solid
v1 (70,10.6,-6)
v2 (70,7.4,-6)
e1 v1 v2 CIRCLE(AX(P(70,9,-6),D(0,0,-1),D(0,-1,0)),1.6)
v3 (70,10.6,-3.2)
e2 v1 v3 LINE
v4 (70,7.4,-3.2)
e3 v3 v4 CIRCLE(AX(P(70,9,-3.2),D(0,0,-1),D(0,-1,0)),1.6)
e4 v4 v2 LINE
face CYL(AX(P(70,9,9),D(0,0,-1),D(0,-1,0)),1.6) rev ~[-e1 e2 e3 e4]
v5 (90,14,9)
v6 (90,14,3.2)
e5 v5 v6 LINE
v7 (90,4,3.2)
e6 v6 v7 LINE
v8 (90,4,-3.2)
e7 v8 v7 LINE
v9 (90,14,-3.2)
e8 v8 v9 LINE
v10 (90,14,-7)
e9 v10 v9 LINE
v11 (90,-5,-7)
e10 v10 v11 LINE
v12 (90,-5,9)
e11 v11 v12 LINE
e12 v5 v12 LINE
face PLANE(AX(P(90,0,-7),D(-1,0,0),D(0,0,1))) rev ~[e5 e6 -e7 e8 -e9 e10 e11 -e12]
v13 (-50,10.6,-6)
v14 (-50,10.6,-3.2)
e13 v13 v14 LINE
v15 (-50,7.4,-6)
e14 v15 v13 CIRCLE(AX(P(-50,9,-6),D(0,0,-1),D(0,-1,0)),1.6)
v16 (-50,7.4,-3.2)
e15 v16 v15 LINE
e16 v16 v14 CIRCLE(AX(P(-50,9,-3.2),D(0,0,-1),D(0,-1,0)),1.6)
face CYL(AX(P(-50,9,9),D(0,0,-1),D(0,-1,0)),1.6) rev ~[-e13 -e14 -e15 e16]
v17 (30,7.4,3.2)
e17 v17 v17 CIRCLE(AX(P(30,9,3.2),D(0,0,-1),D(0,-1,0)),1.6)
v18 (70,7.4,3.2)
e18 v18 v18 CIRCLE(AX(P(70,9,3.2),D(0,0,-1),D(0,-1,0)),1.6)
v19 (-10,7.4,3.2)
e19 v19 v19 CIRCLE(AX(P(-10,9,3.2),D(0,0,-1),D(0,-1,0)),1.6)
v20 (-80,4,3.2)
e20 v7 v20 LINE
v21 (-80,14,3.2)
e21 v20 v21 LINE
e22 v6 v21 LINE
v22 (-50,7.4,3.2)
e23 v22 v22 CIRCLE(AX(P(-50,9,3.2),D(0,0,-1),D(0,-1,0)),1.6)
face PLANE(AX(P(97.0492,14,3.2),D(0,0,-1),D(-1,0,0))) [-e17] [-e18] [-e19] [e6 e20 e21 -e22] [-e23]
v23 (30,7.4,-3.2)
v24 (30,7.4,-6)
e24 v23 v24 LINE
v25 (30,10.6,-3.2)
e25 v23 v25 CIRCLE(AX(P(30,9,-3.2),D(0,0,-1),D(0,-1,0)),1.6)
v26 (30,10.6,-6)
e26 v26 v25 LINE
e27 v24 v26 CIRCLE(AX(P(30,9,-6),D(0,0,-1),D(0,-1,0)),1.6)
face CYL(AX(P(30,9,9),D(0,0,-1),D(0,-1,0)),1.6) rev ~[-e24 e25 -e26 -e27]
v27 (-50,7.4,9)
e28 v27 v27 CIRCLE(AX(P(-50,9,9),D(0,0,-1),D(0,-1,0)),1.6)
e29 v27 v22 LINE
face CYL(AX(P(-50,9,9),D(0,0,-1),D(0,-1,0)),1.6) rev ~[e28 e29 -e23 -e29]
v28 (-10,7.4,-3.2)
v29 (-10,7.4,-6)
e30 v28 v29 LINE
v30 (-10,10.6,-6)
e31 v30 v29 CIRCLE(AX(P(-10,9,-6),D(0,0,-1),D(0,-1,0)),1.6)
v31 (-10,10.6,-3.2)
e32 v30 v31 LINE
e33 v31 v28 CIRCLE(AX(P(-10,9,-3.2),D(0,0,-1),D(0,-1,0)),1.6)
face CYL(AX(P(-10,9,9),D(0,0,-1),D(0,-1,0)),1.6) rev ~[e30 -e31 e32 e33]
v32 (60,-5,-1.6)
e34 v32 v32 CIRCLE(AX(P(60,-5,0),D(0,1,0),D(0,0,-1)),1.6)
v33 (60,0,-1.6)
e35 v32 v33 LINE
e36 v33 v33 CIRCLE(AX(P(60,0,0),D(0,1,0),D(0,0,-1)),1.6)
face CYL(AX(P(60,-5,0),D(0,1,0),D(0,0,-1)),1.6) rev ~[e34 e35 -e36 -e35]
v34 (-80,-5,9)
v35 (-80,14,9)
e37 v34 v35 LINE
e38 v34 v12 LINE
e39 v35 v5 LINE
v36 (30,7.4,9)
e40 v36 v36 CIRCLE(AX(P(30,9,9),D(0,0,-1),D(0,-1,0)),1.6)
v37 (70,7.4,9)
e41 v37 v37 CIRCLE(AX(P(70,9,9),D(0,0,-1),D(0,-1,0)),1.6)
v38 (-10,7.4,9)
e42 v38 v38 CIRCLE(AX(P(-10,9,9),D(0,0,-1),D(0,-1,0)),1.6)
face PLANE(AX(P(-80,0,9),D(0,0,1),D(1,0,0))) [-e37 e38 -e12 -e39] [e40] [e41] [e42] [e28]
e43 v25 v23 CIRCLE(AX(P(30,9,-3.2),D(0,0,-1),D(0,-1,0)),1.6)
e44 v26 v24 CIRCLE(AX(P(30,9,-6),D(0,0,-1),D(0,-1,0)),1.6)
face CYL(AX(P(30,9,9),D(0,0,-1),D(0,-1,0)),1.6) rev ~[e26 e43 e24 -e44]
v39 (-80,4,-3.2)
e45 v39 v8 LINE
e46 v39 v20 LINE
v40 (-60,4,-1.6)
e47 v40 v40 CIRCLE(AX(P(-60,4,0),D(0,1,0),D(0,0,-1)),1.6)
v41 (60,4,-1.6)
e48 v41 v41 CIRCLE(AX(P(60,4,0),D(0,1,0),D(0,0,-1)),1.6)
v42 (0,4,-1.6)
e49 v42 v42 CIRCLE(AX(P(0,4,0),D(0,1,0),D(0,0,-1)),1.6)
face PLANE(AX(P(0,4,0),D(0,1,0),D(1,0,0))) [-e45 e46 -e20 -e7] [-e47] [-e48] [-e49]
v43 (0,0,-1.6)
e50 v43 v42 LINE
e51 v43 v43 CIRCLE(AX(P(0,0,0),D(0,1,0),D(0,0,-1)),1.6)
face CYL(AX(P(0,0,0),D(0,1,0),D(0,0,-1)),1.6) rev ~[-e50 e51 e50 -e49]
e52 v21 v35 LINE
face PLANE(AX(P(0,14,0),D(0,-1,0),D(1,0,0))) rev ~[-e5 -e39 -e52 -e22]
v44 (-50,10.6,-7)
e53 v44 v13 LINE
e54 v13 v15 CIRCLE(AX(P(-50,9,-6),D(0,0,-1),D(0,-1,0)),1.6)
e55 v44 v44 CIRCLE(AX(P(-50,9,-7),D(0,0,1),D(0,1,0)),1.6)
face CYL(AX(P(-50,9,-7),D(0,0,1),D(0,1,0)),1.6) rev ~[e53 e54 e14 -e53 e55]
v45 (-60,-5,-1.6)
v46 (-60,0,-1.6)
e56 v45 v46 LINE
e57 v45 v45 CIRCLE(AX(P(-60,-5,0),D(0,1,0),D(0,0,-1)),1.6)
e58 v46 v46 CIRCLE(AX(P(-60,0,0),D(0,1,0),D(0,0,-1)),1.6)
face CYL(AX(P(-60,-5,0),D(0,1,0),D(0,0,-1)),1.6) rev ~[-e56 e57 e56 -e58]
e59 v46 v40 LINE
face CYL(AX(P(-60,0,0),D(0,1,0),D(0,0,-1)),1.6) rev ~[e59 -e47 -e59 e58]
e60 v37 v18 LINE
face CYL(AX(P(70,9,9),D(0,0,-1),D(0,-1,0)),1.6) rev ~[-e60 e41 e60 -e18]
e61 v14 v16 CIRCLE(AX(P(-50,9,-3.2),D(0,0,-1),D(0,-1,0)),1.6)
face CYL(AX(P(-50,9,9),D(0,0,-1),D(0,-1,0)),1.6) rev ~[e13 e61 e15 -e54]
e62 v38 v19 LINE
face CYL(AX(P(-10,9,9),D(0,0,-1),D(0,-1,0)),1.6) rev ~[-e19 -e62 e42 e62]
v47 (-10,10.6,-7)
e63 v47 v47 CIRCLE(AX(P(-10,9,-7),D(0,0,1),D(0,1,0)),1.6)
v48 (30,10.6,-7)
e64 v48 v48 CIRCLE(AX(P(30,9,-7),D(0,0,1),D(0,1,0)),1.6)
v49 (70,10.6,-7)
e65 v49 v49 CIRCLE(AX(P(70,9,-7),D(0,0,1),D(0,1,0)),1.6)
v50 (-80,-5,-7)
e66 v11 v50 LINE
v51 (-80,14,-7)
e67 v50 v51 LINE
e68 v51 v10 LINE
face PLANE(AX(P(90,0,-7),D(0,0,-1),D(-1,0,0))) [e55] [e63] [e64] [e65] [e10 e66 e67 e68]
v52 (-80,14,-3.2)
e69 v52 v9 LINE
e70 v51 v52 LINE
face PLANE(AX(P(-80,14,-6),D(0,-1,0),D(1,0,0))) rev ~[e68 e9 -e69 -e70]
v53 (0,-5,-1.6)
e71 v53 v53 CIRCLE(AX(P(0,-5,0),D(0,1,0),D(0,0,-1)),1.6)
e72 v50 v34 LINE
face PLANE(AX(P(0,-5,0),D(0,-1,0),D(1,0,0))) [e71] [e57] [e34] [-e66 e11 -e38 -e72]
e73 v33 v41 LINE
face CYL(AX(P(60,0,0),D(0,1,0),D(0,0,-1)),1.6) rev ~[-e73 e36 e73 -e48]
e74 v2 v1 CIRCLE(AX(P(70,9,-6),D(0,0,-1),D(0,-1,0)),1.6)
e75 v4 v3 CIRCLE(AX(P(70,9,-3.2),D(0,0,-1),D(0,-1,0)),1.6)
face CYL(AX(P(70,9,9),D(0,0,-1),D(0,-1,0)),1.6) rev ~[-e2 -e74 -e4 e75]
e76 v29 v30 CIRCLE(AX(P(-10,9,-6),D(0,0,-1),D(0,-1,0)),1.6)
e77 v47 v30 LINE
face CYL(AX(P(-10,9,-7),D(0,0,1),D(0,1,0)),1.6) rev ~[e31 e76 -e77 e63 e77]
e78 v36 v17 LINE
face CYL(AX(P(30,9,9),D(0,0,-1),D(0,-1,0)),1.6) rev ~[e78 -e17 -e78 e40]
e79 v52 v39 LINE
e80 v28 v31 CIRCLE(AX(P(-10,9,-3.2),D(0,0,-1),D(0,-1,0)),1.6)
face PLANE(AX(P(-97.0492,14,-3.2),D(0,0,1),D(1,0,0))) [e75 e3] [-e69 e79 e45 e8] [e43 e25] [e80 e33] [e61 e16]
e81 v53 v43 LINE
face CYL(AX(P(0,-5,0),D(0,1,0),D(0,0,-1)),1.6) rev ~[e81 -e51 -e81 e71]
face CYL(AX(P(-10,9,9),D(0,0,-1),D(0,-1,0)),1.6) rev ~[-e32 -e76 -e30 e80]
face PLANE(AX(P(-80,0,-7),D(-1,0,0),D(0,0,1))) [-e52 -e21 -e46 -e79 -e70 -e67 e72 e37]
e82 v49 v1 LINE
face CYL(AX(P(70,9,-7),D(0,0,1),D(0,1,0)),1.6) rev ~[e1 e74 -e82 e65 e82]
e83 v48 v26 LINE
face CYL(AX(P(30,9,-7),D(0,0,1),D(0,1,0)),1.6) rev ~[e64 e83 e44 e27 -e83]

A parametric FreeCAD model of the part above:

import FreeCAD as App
import Part
import Sketcher

V = App.Vector


def add_polygon(sketch, points):
    """Adds a closed chain of lines whose ends are joined by coincident constraints."""
    first, n = sketch.GeometryCount, len(points)
    for a, b in zip(points, points[1:] + points[:1]):
        sketch.addGeometry(Part.LineSegment(App.Vector(*a, 0), App.Vector(*b, 0)), False)
    for i in range(n):
        sketch.addConstraint(Sketcher.Constraint("Coincident", first + i, 2, first + (i + 1) % n, 1))

doc = App.newDocument("Part")
body = doc.addObject("PartDesign::Body", "Body")

# Sketch on XZ plane
sketch1 = doc.addObject("Sketcher::SketchObject", "Sketch")
body.addObject(sketch1)
sketch1.AttachmentSupport = (doc.XZ_Plane, [""])
sketch1.MapMode = "FlatFace"
add_polygon(sketch1, [(90, 3), (90, -3), (-90, -3), (-90, 3)])  # lines 0-3
sketch1.addConstraint([
    Sketcher.Constraint("Vertical", 0),
    Sketcher.Constraint("Horizontal", 1),
    Sketcher.Constraint("Vertical", 2),
    Sketcher.Constraint("Horizontal", 3),
    Sketcher.Constraint("Symmetric", 0, 2, 2, 2, -1, 1),
    Sketcher.Constraint("DistanceX", 1, 2, 1, 1, 180.0),
    Sketcher.Constraint("DistanceY", 0, 2, 0, 1, 6.0),
])
pad1 = doc.addObject("PartDesign::Pad", "Pad")
body.addObject(pad1)
pad1.Profile = sketch1
pad1.Length = 17
pad1.Reversed = True

# Sketch on XZ plane
sketch2 = doc.addObject("Sketcher::SketchObject", "Sketch001")
body.addObject(sketch2)
sketch2.AttachmentSupport = (doc.XZ_Plane, [""])
sketch2.MapMode = "FlatFace"
add_polygon(sketch2, [(-80, 9), (-80, 3), (90, 3), (90, 9)])  # lines 0-3
add_polygon(sketch2, [(90, -6), (90, -3), (-80, -3), (-80, -6)])  # lines 4-7
sketch2.addConstraint([
    Sketcher.Constraint("Vertical", 0),
    Sketcher.Constraint("Horizontal", 1),
    Sketcher.Constraint("Vertical", 2),
    Sketcher.Constraint("Horizontal", 3),
    Sketcher.Constraint("Vertical", 4),
    Sketcher.Constraint("Horizontal", 5),
    Sketcher.Constraint("Vertical", 6),
    Sketcher.Constraint("Horizontal", 7),
    Sketcher.Constraint("Symmetric", 1, 2, 4, 2, -1),
    Sketcher.Constraint("Vertical", 3, 2, 5, 2),
    Sketcher.Constraint("DistanceX", 1, 1, 1, 2, 170.0),
    Sketcher.Constraint("DistanceY", 0, 2, 0, 1, 6.0),
    Sketcher.Constraint("DistanceY", 4, 1, 4, 2, 3.0),
    Sketcher.Constraint("DistanceY", -1, 1, 0, 2, 3.0),
    Sketcher.Constraint("DistanceX", 0, 2, -1, 1, 80.0),
])
pad2 = doc.addObject("PartDesign::Pad", "Pad001")
body.addObject(pad2)
pad2.Profile = sketch2
pad2.Length = 14
pad2.Reversed = True

# Sketch on XZ plane
sketch3 = doc.addObject("Sketcher::SketchObject", "Sketch002")
body.addObject(sketch3)
sketch3.AttachmentSupport = (doc.XZ_Plane, [""])
sketch3.MapMode = "FlatFace"
sketch3.AttachmentOffset = App.Placement(V(0, 0, -17), App.Rotation())
add_polygon(sketch3, [(90, -3), (-90, -3), (-90, 3), (90, 3)])  # lines 0-3
sketch3.addConstraint([
    Sketcher.Constraint("Horizontal", 0),
    Sketcher.Constraint("Vertical", 1),
    Sketcher.Constraint("Horizontal", 2),
    Sketcher.Constraint("Vertical", 3),
    Sketcher.Constraint("Symmetric", 0, 2, 2, 2, -1, 1),
    Sketcher.Constraint("DistanceX", 0, 2, 0, 1, 180.0),
    Sketcher.Constraint("DistanceY", 1, 1, 1, 2, 6.0),
])
pocket1 = doc.addObject("PartDesign::Pocket", "Pocket")
body.addObject(pocket1)
pocket1.Profile = sketch3
pocket1.Length = 13
pocket1.Reversed = True

# Sketch on XZ plane
sketch4 = doc.addObject("Sketcher::SketchObject", "Sketch003")
body.addObject(sketch4)
sketch4.AttachmentSupport = (doc.XZ_Plane, [""])
sketch4.MapMode = "FlatFace"
sketch4.AttachmentOffset = App.Placement(V(0, 0, -4), App.Rotation())
add_polygon(sketch4, [(-90, -3), (-90, 3), (-80, 3), (-80, -3)])  # lines 0-3
sketch4.addConstraint([
    Sketcher.Constraint("Vertical", 0),
    Sketcher.Constraint("Horizontal", 1),
    Sketcher.Constraint("Vertical", 2),
    Sketcher.Constraint("Horizontal", 3),
    Sketcher.Constraint("DistanceX", 1, 1, 1, 2, 10.0),
    Sketcher.Constraint("DistanceY", 0, 1, 0, 2, 6.0),
    Sketcher.Constraint("DistanceX", 0, 2, -1, 1, 90.0),
    Sketcher.Constraint("DistanceY", -1, 1, 0, 2, 3.0),
])
pocket2 = doc.addObject("PartDesign::Pocket", "Pocket001")
body.addObject(pocket2)
pocket2.Profile = sketch4
pocket2.Length = 13
pocket2.Reversed = True

# Sketch on XZ plane
sketch5 = doc.addObject("Sketcher::SketchObject", "Sketch004")
body.addObject(sketch5)
sketch5.AttachmentSupport = (doc.XZ_Plane, [""])
sketch5.MapMode = "FlatFace"
sketch5.AttachmentOffset = App.Placement(V(0, 0, -14), App.Rotation())
add_polygon(sketch5, [(-97, 3), (97, 3), (97, -3), (-97, -3)])  # lines 0-3
sketch5.addConstraint([
    Sketcher.Constraint("Horizontal", 0),
    Sketcher.Constraint("Vertical", 1),
    Sketcher.Constraint("Horizontal", 2),
    Sketcher.Constraint("Vertical", 3),
    Sketcher.Constraint("Symmetric", 0, 2, 2, 2, -1, 1),
    Sketcher.Constraint("DistanceY", 1, 2, 1, 1, 6.4),
    Sketcher.Constraint("DistanceX", 0, 1, 0, 2, 194.0984),
])
pocket3 = doc.addObject("PartDesign::Pocket", "Pocket002")
body.addObject(pocket3)
pocket3.Profile = sketch5
pocket3.Length = 10
pocket3.Reversed = True

# Sketch on XY plane
sketch6 = doc.addObject("Sketcher::SketchObject", "Sketch005")
body.addObject(sketch6)
sketch6.AttachmentSupport = (doc.XY_Plane, [""])
sketch6.MapMode = "FlatFace"
sketch6.AttachmentOffset = App.Placement(V(0, 0, 9), App.Rotation())
sketch6.addGeometry([
    Part.Circle(V(70, 9, 0), V(0, 0, 1), 1.6),
    Part.Circle(V(30, 9, 0), V(0, 0, 1), 1.6),
    Part.Circle(V(-10, 9, 0), V(0, 0, 1), 1.6),
    Part.Circle(V(-50, 9, 0), V(0, 0, 1), 1.6),
], False)
sketch6.addConstraint([
    Sketcher.Constraint("Equal", 0, 1),
    Sketcher.Constraint("Equal", 1, 2),
    Sketcher.Constraint("Equal", 2, 3),
    Sketcher.Constraint("Horizontal", 0, 3, 1, 3),
    Sketcher.Constraint("Horizontal", 1, 3, 2, 3),
    Sketcher.Constraint("Horizontal", 2, 3, 3, 3),
    Sketcher.Constraint("Diameter", 0, 3.2),
    Sketcher.Constraint("DistanceX", -1, 1, 0, 3, 70.0),
    Sketcher.Constraint("DistanceY", -1, 1, 0, 3, 9.0),
    Sketcher.Constraint("DistanceX", -1, 1, 1, 3, 30.0),
    Sketcher.Constraint("DistanceX", 2, 3, -1, 1, 10.0),
    Sketcher.Constraint("DistanceX", 3, 3, -1, 1, 50.0),
])
doc.recompute()
hole = doc.addObject("PartDesign::Hole", "Hole")
body.addObject(hole)
hole.Profile = sketch6
hole.ThreadType = "None"
hole.Diameter = 3.2
hole.DepthType = "ThroughAll"

# Sketch on XZ plane
sketch7 = doc.addObject("Sketcher::SketchObject", "Sketch006")
body.addObject(sketch7)
sketch7.AttachmentSupport = (doc.XZ_Plane, [""])
sketch7.MapMode = "FlatFace"
sketch7.addGeometry([
    Part.Circle(V(60, 0, 0), V(0, 0, 1), 1.6),
    Part.Circle(V(0, 0, 0), V(0, 0, 1), 1.6),
    Part.Circle(V(-60, 0, 0), V(0, 0, 1), 1.6),
], False)
sketch7.addConstraint([
    Sketcher.Constraint("Coincident", 1, 3, -1, 1),
    Sketcher.Constraint("Equal", 0, 1),
    Sketcher.Constraint("Equal", 1, 2),
    Sketcher.Constraint("Symmetric", 0, 3, 2, 3, -1, 1),
    Sketcher.Constraint("PointOnObject", 0, 3, -1),
    Sketcher.Constraint("Diameter", 0, 3.2),
    Sketcher.Constraint("DistanceX", -1, 1, 0, 3, 60.0),
])
doc.recompute()
hole2 = doc.addObject("PartDesign::Hole", "Hole001")
body.addObject(hole2)
hole2.Profile = sketch7
hole2.ThreadType = "None"
hole2.Diameter = 3.2
hole2.DepthType = "ThroughAll"

# Sketch on XY plane
sketch8 = doc.addObject("Sketcher::SketchObject", "Sketch007")
body.addObject(sketch8)
sketch8.AttachmentSupport = (doc.XY_Plane, [""])
sketch8.MapMode = "FlatFace"
sketch8.AttachmentOffset = App.Placement(V(0, 0, -6), App.Rotation())
add_polygon(sketch8, [(90, 14), (90, 0), (-80, 0), (-80, 14)])  # lines 0-3
sketch8.addConstraint([
    Sketcher.Constraint("Vertical", 0),
    Sketcher.Constraint("Horizontal", 1),
    Sketcher.Constraint("Vertical", 2),
    Sketcher.Constraint("Horizontal", 3),
    Sketcher.Constraint("PointOnObject", 0, 2, -1),
    Sketcher.Constraint("DistanceX", 1, 2, 1, 1, 170.0),
    Sketcher.Constraint("DistanceY", 0, 2, 0, 1, 14.0),
    Sketcher.Constraint("DistanceX", -1, 1, 0, 2, 90.0),
])
pad3 = doc.addObject("PartDesign::Pad", "Pad002")
body.addObject(pad3)
pad3.Profile = sketch8
pad3.Length = 1
pad3.Reversed = True

# Sketch on XY plane
sketch9 = doc.addObject("Sketcher::SketchObject", "Sketch008")
body.addObject(sketch9)
sketch9.AttachmentSupport = (doc.XY_Plane, [""])
sketch9.MapMode = "FlatFace"
sketch9.AttachmentOffset = App.Placement(V(0, 0, -7), App.Rotation())
sketch9.addGeometry([
    Part.Circle(V(70, 9, 0), V(0, 0, 1), 1.6),
    Part.Circle(V(30, 9, 0), V(0, 0, 1), 1.6),
    Part.Circle(V(-10, 9, 0), V(0, 0, 1), 1.6),
    Part.Circle(V(-50, 9, 0), V(0, 0, 1), 1.6),
], False)
sketch9.addConstraint([
    Sketcher.Constraint("Equal", 0, 1),
    Sketcher.Constraint("Equal", 1, 2),
    Sketcher.Constraint("Equal", 2, 3),
    Sketcher.Constraint("Horizontal", 0, 3, 1, 3),
    Sketcher.Constraint("Horizontal", 1, 3, 2, 3),
    Sketcher.Constraint("Horizontal", 2, 3, 3, 3),
    Sketcher.Constraint("Diameter", 0, 3.2),
    Sketcher.Constraint("DistanceX", -1, 1, 0, 3, 70.0),
    Sketcher.Constraint("DistanceY", -1, 1, 0, 3, 9.0),
    Sketcher.Constraint("DistanceX", -1, 1, 1, 3, 30.0),
    Sketcher.Constraint("DistanceX", 2, 3, -1, 1, 10.0),
    Sketcher.Constraint("DistanceX", 3, 3, -1, 1, 50.0),
])
doc.recompute()
hole3 = doc.addObject("PartDesign::Hole", "Hole002")
body.addObject(hole3)
hole3.Profile = sketch9
hole3.ThreadType = "None"
hole3.Diameter = 3.2
hole3.DepthType = "Dimension"
hole3.Depth = 10
hole3.DrillPoint = "Flat"
hole3.Reversed = True

# Sketch on XZ plane
sketch10 = doc.addObject("Sketcher::SketchObject", "Sketch009")
body.addObject(sketch10)
sketch10.AttachmentSupport = (doc.XZ_Plane, [""])
sketch10.MapMode = "FlatFace"
add_polygon(sketch10, [(-80, -7), (90, -7), (90, 9), (-80, 9)])  # lines 0-3
sketch10.addConstraint([
    Sketcher.Constraint("Horizontal", 0),
    Sketcher.Constraint("Vertical", 1),
    Sketcher.Constraint("Horizontal", 2),
    Sketcher.Constraint("Vertical", 3),
    Sketcher.Constraint("DistanceX", 0, 1, 0, 2, 170.0),
    Sketcher.Constraint("DistanceY", 1, 1, 1, 2, 16.0),
    Sketcher.Constraint("DistanceX", -1, 1, 0, 2, 90.0),
    Sketcher.Constraint("DistanceY", 0, 2, -1, 1, 7.0),
])
pad4 = doc.addObject("PartDesign::Pad", "Pad003")
body.addObject(pad4)
pad4.Profile = sketch10
pad4.Length = 5

# Sketch on XZ plane
sketch11 = doc.addObject("Sketcher::SketchObject", "Sketch010")
body.addObject(sketch11)
sketch11.AttachmentSupport = (doc.XZ_Plane, [""])
sketch11.MapMode = "FlatFace"
sketch11.AttachmentOffset = App.Placement(V(0, 0, 5), App.Rotation())
sketch11.addGeometry([
    Part.Circle(V(0, 0, 0), V(0, 0, 1), 1.6),
    Part.Circle(V(-60, 0, 0), V(0, 0, 1), 1.6),
    Part.Circle(V(60, 0, 0), V(0, 0, 1), 1.6),
], False)
sketch11.addConstraint([
    Sketcher.Constraint("Coincident", 0, 3, -1, 1),
    Sketcher.Constraint("Equal", 0, 1),
    Sketcher.Constraint("Equal", 1, 2),
    Sketcher.Constraint("Symmetric", 1, 3, 2, 3, -1, 1),
    Sketcher.Constraint("PointOnObject", 1, 3, -1),
    Sketcher.Constraint("Diameter", 0, 3.2),
    Sketcher.Constraint("DistanceX", 1, 3, -1, 1, 60.0),
])
doc.recompute()
hole4 = doc.addObject("PartDesign::Hole", "Hole003")
body.addObject(hole4)
hole4.Profile = sketch11
hole4.ThreadType = "None"
hole4.Diameter = 3.2
hole4.DepthType = "Dimension"
hole4.Depth = 10
hole4.DrillPoint = "Flat"

doc.recompute()
